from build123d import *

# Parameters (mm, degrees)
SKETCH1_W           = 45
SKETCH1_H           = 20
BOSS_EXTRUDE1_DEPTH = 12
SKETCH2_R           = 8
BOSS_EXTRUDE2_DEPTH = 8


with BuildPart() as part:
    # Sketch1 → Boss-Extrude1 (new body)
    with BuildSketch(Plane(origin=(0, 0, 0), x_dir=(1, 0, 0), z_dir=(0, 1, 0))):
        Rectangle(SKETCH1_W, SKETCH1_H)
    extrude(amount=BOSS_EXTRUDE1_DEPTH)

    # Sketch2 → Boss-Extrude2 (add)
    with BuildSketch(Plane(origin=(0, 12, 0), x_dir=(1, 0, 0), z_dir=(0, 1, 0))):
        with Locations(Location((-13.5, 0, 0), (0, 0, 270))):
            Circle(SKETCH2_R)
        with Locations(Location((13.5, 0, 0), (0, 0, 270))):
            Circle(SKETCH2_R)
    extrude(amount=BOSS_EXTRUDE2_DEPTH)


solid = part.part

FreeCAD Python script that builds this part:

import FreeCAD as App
import Part
import Sketcher
from FreeCAD import Vector

doc = App.newDocument("Part")
body = doc.addObject("PartDesign::Body", "Body")

sketch1 = body.newObject("Sketcher::SketchObject", "Sketch")
sketch1.AttachmentSupport = (doc.getObject("XZ_Plane"), [""])
sketch1.MapMode = "FlatFace"
sketch1.addGeometry([
    Part.LineSegment(Vector(-22, -10, 0), Vector(-22, 10, 0)),
    Part.LineSegment(Vector(-22, 10, 0), Vector(22, 10, 0)),
    Part.LineSegment(Vector(22, 10, 0), Vector(22, -10, 0)),
    Part.LineSegment(Vector(22, -10, 0), Vector(-22, -10, 0)),
], False)
sketch1.addConstraint([
    Sketcher.Constraint("Coincident", 0, 2, 1, 1),
    Sketcher.Constraint("Coincident", 1, 2, 2, 1),
    Sketcher.Constraint("Coincident", 2, 2, 3, 1),
    Sketcher.Constraint("Coincident", 3, 2, 0, 1),
    Sketcher.Constraint("Vertical", 0),
    Sketcher.Constraint("Horizontal", 1),
    Sketcher.Constraint("Vertical", 2),
    Sketcher.Constraint("Horizontal", 3),
    Sketcher.Constraint("Symmetric", 0, 2, 2, 2, -1, 1),
    Sketcher.Constraint("DistanceX", 1, 1, 1, 2, 45.0),
    Sketcher.Constraint("DistanceY", 0, 1, 0, 2, 20.0),
])
pad1 = body.newObject("PartDesign::Pad", "Pad")
pad1.Profile = sketch1
pad1.Length = 12
pad1.Reversed = True

sketch2 = body.newObject("Sketcher::SketchObject", "Sketch001")
sketch2.AttachmentSupport = (doc.getObject("XZ_Plane"), [""])
sketch2.MapMode = "FlatFace"
sketch2.AttachmentOffset = App.Placement(Vector(0, 0, -12), App.Rotation())
sketch2.addGeometry([
    Part.Circle(Vector(-14, 0, 0), Vector(0, 0, 1), 8),
    Part.Circle(Vector(14, 0, 0), Vector(0, 0, 1), 8),
], False)
sketch2.addConstraint([
    Sketcher.Constraint("Equal", 0, 1),
    Sketcher.Constraint("Symmetric", 0, 3, 1, 3, -1, 1),
    Sketcher.Constraint("PointOnObject", 0, 3, -1),
    Sketcher.Constraint("Diameter", 0, 16.0),
    Sketcher.Constraint("DistanceX", 0, 3, 1, 3, 27.0),
])
pad2 = body.newObject("PartDesign::Pad", "Pad001")
pad2.Profile = sketch2
pad2.Length = 8
pad2.Reversed = True

doc.recompute()
